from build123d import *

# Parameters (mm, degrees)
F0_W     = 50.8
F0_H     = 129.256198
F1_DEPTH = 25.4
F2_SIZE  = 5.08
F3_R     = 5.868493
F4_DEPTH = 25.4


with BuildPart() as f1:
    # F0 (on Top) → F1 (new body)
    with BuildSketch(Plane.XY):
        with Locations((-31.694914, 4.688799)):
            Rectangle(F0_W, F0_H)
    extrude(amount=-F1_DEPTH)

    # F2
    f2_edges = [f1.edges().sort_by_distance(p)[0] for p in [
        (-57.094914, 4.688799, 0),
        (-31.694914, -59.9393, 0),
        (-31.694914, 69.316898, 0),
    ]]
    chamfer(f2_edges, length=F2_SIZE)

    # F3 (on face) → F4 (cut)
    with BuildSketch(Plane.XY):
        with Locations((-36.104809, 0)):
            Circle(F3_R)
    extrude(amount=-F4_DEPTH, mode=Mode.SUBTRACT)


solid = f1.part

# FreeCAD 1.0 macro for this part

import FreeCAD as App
import Part
import Sketcher
Q = App.Units.Quantity


def edges_at(feature, points):
    """Names of the edges that pass closest to the given points."""
    edges = feature.Shape.Edges
    near = lambda p: min(range(len(edges)), key=lambda i: edges[i].distToShape(Part.Vertex(*p))[0])
    return sorted({f"Edge{near(p) + 1}" for p in points})

doc = App.newDocument("Part")
body = doc.addObject("PartDesign::Body", "Body")

# Sketch on XY plane
sketch1 = body.newObject("Sketcher::SketchObject", "Sketch")
sketch1.AttachmentSupport = (doc.getObject("XY_Plane"), [""])
sketch1.MapMode = "FlatFace"
sketch1.addGeometry([
    Part.LineSegment(App.Vector(-57.094914, 69.316898, 0), App.Vector(-57.094914, -59.9393, 0)),
    Part.LineSegment(App.Vector(-57.094914, -59.9393, 0), App.Vector(-6.294914, -59.9393, 0)),
    Part.LineSegment(App.Vector(-6.294914, -59.9393, 0), App.Vector(-6.294914, 69.316898, 0)),
    Part.LineSegment(App.Vector(-6.294914, 69.316898, 0), App.Vector(-57.094914, 69.316898, 0)),
], False)
sketch1.addConstraint([
    Sketcher.Constraint("Coincident", 0, 2, 1, 1),
    Sketcher.Constraint("Coincident", 1, 2, 2, 1),
    Sketcher.Constraint("Coincident", 2, 2, 3, 1),
    Sketcher.Constraint("Coincident", 3, 2, 0, 1),
    Sketcher.Constraint("Vertical", 0),
    Sketcher.Constraint("Horizontal", 1),
    Sketcher.Constraint("Vertical", 2),
    Sketcher.Constraint("Horizontal", 3),
    Sketcher.Constraint("DistanceX", 1, 1, 1, 2, Q("2 in")),
    Sketcher.Constraint("DistanceY", 0, 2, -1, 1, 59.9393),
    Sketcher.Constraint("DistanceY", 0, 2, 0, 1, 129.256198),
    Sketcher.Constraint("DistanceX", 0, 2, -1, 1, 57.094914),
])
pad1 = body.newObject("PartDesign::Pad", "Pad")
pad1.Profile = sketch1
pad1.Length = Q("1 in")
pad1.Reversed = True
doc.recompute()

chamfer = body.newObject("PartDesign::Chamfer", "Chamfer")
chamfer.Base = (pad1, edges_at(pad1, [(-57.095, 4.689, 0), (-31.695, -59.939, 0), (-31.695, 69.317, 0)]))
chamfer.Size = Q("0.2 in")

# Sketch on XY plane
sketch2 = body.newObject("Sketcher::SketchObject", "Sketch001")
sketch2.AttachmentSupport = (doc.getObject("XY_Plane"), [""])
sketch2.MapMode = "FlatFace"
sketch2.addGeometry(Part.Circle(App.Vector(-36.104809, 0, 0), App.Vector(0, 0, 1), 5.868493), False)
sketch2.addConstraint([
    Sketcher.Constraint("PointOnObject", 0, 3, -1),
    Sketcher.Constraint("Diameter", 0, 11.736986),
    Sketcher.Constraint("DistanceX", 0, 3, -1, 1, 36.104809),
])
pocket1 = body.newObject("PartDesign::Pocket", "Pocket")
pocket1.Profile = sketch2
pocket1.Length = Q("1 in")

doc.recompute()
